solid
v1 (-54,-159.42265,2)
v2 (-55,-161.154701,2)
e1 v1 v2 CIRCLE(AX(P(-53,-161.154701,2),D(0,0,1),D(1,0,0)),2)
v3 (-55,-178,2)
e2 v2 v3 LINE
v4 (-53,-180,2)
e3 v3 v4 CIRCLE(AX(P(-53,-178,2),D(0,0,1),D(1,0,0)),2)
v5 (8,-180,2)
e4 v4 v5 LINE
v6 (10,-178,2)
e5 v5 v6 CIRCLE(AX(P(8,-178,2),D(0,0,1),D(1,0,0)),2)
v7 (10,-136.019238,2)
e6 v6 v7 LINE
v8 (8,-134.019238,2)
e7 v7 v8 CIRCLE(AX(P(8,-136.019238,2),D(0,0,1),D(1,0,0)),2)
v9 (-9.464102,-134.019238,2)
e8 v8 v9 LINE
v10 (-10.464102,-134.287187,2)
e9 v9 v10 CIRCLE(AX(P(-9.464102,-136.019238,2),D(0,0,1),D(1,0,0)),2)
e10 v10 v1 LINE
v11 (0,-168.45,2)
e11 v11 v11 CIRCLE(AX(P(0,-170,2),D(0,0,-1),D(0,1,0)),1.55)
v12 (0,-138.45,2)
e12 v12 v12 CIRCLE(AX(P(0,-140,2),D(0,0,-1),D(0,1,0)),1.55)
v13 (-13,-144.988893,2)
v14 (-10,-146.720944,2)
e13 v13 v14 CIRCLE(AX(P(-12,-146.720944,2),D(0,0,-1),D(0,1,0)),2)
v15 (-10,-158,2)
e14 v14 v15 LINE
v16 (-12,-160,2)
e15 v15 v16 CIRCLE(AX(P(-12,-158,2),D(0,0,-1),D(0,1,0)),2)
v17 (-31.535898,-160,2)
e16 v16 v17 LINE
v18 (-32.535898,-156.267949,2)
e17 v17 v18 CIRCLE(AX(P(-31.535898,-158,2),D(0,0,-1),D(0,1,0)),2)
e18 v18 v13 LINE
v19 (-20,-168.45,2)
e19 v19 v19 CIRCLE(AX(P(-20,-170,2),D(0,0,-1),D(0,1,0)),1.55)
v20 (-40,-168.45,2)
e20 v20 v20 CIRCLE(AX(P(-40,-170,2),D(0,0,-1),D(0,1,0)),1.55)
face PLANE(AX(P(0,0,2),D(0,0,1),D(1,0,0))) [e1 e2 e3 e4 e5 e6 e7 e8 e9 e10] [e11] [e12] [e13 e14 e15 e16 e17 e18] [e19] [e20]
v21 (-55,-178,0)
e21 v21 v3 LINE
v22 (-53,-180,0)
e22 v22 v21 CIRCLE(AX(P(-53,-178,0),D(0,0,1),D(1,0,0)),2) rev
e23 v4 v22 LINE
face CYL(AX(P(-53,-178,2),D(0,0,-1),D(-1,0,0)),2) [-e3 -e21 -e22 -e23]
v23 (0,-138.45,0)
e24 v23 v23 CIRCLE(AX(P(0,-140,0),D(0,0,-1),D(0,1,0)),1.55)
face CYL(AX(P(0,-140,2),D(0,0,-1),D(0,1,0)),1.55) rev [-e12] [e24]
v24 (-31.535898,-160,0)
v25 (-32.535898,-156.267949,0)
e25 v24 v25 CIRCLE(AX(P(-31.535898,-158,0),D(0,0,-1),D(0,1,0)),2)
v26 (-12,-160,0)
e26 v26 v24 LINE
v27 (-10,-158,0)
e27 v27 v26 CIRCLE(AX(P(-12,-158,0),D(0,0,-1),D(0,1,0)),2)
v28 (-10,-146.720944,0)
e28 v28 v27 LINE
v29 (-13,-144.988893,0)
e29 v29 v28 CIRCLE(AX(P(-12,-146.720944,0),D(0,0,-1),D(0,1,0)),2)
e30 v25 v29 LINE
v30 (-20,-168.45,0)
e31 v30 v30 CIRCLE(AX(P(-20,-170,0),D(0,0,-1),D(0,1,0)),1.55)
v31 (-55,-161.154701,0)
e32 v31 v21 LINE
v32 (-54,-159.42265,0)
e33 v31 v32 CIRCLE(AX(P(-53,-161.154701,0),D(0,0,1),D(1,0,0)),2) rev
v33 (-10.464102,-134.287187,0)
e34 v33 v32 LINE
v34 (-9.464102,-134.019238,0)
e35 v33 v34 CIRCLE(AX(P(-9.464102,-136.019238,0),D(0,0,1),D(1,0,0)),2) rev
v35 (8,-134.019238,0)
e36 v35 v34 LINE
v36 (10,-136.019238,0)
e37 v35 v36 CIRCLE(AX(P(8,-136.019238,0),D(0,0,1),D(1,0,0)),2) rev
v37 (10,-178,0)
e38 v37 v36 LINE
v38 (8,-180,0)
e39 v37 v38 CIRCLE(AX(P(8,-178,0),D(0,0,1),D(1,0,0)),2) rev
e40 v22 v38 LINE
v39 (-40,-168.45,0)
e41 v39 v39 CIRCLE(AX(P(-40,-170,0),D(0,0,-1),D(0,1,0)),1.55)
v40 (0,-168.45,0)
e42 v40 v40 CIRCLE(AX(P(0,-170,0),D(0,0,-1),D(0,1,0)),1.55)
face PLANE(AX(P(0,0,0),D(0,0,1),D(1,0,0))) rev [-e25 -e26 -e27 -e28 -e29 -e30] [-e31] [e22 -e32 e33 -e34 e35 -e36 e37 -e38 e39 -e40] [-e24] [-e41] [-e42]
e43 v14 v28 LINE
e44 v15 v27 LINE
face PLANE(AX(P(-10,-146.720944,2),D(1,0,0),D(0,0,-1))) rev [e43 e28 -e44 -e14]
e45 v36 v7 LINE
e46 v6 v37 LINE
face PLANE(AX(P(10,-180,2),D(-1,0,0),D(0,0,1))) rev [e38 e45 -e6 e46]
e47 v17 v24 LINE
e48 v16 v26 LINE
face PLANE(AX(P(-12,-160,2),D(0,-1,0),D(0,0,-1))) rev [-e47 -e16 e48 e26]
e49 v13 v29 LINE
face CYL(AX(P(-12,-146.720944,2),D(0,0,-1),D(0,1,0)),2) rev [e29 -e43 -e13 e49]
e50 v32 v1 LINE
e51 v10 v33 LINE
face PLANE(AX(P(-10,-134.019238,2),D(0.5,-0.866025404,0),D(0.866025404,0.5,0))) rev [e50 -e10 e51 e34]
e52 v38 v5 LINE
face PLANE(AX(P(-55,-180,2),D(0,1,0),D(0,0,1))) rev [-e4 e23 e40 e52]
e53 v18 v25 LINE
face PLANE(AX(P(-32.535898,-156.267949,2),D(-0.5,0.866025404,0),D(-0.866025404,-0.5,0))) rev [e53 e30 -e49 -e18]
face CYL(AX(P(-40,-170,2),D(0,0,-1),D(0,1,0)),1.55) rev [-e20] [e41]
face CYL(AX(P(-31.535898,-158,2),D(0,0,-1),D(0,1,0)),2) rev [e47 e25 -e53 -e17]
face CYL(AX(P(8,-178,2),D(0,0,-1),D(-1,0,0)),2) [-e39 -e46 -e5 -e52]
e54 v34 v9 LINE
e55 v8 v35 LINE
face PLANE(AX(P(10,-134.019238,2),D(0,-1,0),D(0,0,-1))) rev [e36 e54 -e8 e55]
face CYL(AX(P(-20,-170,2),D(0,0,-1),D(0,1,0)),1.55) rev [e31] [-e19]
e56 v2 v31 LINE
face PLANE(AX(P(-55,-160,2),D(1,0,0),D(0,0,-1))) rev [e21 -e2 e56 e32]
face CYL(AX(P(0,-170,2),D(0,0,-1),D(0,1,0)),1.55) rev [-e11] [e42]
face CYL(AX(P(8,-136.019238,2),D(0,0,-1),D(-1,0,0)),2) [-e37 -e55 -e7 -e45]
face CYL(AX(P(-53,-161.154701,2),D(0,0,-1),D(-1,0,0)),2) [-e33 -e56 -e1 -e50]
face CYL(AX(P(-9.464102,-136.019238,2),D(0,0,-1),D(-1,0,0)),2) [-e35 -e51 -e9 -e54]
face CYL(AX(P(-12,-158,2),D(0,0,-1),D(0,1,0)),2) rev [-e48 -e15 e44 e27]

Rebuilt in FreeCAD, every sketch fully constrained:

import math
import FreeCAD as App
import Part
import Sketcher
Q = App.Units.Quantity


def edges_at(feature, points):
    """Names of the edges that pass closest to the given points."""
    edges = feature.Shape.Edges
    near = lambda p: min(range(len(edges)), key=lambda i: edges[i].distToShape(Part.Vertex(*p))[0])
    return sorted({f"Edge{near(p) + 1}" for p in points})


def add_polygon(sketch, points):
    """Adds a closed chain of lines whose ends are joined by coincident constraints."""
    first, n = sketch.GeometryCount, len(points)
    for a, b in zip(points, points[1:] + points[:1]):
        sketch.addGeometry(Part.LineSegment(App.Vector(*a, 0), App.Vector(*b, 0)), False)
    for i in range(n):
        sketch.addConstraint(Sketcher.Constraint("Coincident", first + i, 2, first + (i + 1) % n, 1))

doc = App.newDocument("Part")
params = doc.addObject("Spreadsheet::Sheet", "Params")
for row, (alias, value) in enumerate([
    ("sketch1_width", "65 mm"),
    ("sketch1_width2", "20 mm"),
    ("pad1_length", "2 mm"),
    ("sketch2_radius", "2 mm"),
    ("sketch2_diameter", "3.1 mm"),
    ("fillet_radius", "2 mm"),
], start=1):
    params.set(f"A{row}", alias)
    params.set(f"B{row}", "=" + value)
    params.setAlias(f"B{row}", alias)

body = doc.addObject("PartDesign::Body", "Body")

# Sketch on XY plane
sketch1 = body.newObject("Sketcher::SketchObject", "Sketch")
sketch1.AttachmentSupport = (doc.getObject("XY_Plane"), [""])
sketch1.MapMode = "FlatFace"
add_polygon(sketch1, [(-55, -180), (10, -180), (10, -134), (-10, -134), (-55, -160)])  # lines 0-4
sketch1.addConstraint([
    Sketcher.Constraint("Horizontal", 0),
    Sketcher.Constraint("Vertical", 1),
    Sketcher.Constraint("Horizontal", 2),
    Sketcher.Constraint("Vertical", 4),
    Sketcher.Constraint("Equal", 2, 4),
    Sketcher.Constraint("DistanceX", 0, 1, 0, 2, Q("65 mm")),
    Sketcher.Constraint("DistanceX", 2, 2, 2, 1, Q("20 mm")),
    Sketcher.Constraint("Angle", 3, Q("-150 deg")),
    Sketcher.Constraint("DistanceX", -1, 1, 0, 2, Q("10 mm")),
    Sketcher.Constraint("DistanceY", 0, 2, -1, 1, Q("180 mm")),
])
sketch1.setExpression("Constraints[10]", "Params.sketch1_width")
sketch1.setExpression("Constraints[11]", "Params.sketch1_width2")
pad1 = body.newObject("PartDesign::Pad", "Pad")
pad1.Profile = sketch1
pad1.setExpression("Length", "Params.pad1_length")

# Sketch on XY plane
sketch2 = body.newObject("Sketcher::SketchObject", "Sketch001")
sketch2.AttachmentSupport = (doc.getObject("XY_Plane"), [""])
sketch2.MapMode = "FlatFace"
sketch2.addGeometry([
    Part.Circle(App.Vector(-40, -170, 0), App.Vector(0, 0, 1), 1.6),  # 0
    Part.Circle(App.Vector(-20, -170, 0), App.Vector(0, 0, 1), 1.6),  # 1
    Part.Circle(App.Vector(0, -170, 0), App.Vector(0, 0, 1), 1.6),  # 2
    Part.Circle(App.Vector(0, -140, 0), App.Vector(0, 0, 1), 1.6),  # 3
    Part.LineSegment(App.Vector(-12, -160, 0), App.Vector(-31.5, -160, 0)),  # 4
    Part.ArcOfCircle(Part.Circle(App.Vector(-31.5, -158, 0), App.Vector(0, 0, 1), 2), math.radians(120), math.radians(270)),  # 5
    Part.LineSegment(App.Vector(-32.5, -156.3, 0), App.Vector(-13, -145, 0)),  # 6
    Part.ArcOfCircle(Part.Circle(App.Vector(-12, -146.7, 0), App.Vector(0, 0, 1), 2), math.radians(0), math.radians(120)),  # 7
    Part.LineSegment(App.Vector(-10, -146.7, 0), App.Vector(-10, -158, 0)),  # 8
    Part.ArcOfCircle(Part.Circle(App.Vector(-12, -158, 0), App.Vector(0, 0, 1), 2), math.radians(-90), math.radians(0)),  # 9
], False)
sketch2.addConstraint([
    Sketcher.Constraint("Tangent", 4, 2, 5, 2),
    Sketcher.Constraint("Tangent", 5, 1, 6, 1),
    Sketcher.Constraint("Tangent", 6, 2, 7, 2),
    Sketcher.Constraint("Tangent", 7, 1, 8, 1),
    Sketcher.Constraint("Tangent", 8, 2, 9, 2),
    Sketcher.Constraint("Tangent", 9, 1, 4, 1),
    Sketcher.Constraint("Horizontal", 4),
    Sketcher.Constraint("Vertical", 8),
    Sketcher.Constraint("Equal", 0, 1),
    Sketcher.Constraint("Equal", 1, 2),
    Sketcher.Constraint("Equal", 2, 3),
    Sketcher.Constraint("Equal", 5, 7),
    Sketcher.Constraint("Equal", 7, 9),
    Sketcher.Constraint("PointOnObject", 2, 3, -2),
    Sketcher.Constraint("PointOnObject", 3, 3, -2),
    Sketcher.Constraint("Horizontal", 0, 3, 1, 3),
    Sketcher.Constraint("Horizontal", 1, 3, 2, 3),
    Sketcher.Constraint("Radius", 5, Q("2 mm")),
    Sketcher.Constraint("Diameter", 0, Q("3.1 mm")),
    Sketcher.Constraint("Angle", 6, Q("30 deg")),
    Sketcher.Constraint("DistanceX", 0, 3, -1, 1, Q("40 mm")),
    Sketcher.Constraint("DistanceY", 0, 3, -1, 1, Q("170 mm")),
    Sketcher.Constraint("DistanceX", 1, 3, -1, 1, Q("20 mm")),
    Sketcher.Constraint("DistanceY", 3, 3, -1, 1, Q("140 mm")),
    Sketcher.Constraint("DistanceY", 5, 3, -1, 1, Q("158 mm")),
    Sketcher.Constraint("DistanceX", 7, 3, -1, 1, Q("12 mm")),
    Sketcher.Constraint("DistanceX", 4, 2, 4, 1, Q("19.535898 mm")),
])
sketch2.setExpression("Constraints[17]", "Params.sketch2_radius")
sketch2.setExpression("Constraints[18]", "Params.sketch2_diameter")
pocket1 = body.newObject("PartDesign::Pocket", "Pocket")
pocket1.Profile = sketch2
pocket1.Type = "ThroughAll"
pocket1.Reversed = True
doc.recompute()

fillet = body.newObject("PartDesign::Fillet", "Fillet")
fillet.Base = (pocket1, edges_at(pocket1, [
    (-55, -160, 1),
    (-10, -134.019, 1),
    (10, -134.019, 1),
    (10, -180, 1),
    (-55, -180, 1),
]))
fillet.setExpression("Radius", "Params.fillet_radius")

doc.recompute()
